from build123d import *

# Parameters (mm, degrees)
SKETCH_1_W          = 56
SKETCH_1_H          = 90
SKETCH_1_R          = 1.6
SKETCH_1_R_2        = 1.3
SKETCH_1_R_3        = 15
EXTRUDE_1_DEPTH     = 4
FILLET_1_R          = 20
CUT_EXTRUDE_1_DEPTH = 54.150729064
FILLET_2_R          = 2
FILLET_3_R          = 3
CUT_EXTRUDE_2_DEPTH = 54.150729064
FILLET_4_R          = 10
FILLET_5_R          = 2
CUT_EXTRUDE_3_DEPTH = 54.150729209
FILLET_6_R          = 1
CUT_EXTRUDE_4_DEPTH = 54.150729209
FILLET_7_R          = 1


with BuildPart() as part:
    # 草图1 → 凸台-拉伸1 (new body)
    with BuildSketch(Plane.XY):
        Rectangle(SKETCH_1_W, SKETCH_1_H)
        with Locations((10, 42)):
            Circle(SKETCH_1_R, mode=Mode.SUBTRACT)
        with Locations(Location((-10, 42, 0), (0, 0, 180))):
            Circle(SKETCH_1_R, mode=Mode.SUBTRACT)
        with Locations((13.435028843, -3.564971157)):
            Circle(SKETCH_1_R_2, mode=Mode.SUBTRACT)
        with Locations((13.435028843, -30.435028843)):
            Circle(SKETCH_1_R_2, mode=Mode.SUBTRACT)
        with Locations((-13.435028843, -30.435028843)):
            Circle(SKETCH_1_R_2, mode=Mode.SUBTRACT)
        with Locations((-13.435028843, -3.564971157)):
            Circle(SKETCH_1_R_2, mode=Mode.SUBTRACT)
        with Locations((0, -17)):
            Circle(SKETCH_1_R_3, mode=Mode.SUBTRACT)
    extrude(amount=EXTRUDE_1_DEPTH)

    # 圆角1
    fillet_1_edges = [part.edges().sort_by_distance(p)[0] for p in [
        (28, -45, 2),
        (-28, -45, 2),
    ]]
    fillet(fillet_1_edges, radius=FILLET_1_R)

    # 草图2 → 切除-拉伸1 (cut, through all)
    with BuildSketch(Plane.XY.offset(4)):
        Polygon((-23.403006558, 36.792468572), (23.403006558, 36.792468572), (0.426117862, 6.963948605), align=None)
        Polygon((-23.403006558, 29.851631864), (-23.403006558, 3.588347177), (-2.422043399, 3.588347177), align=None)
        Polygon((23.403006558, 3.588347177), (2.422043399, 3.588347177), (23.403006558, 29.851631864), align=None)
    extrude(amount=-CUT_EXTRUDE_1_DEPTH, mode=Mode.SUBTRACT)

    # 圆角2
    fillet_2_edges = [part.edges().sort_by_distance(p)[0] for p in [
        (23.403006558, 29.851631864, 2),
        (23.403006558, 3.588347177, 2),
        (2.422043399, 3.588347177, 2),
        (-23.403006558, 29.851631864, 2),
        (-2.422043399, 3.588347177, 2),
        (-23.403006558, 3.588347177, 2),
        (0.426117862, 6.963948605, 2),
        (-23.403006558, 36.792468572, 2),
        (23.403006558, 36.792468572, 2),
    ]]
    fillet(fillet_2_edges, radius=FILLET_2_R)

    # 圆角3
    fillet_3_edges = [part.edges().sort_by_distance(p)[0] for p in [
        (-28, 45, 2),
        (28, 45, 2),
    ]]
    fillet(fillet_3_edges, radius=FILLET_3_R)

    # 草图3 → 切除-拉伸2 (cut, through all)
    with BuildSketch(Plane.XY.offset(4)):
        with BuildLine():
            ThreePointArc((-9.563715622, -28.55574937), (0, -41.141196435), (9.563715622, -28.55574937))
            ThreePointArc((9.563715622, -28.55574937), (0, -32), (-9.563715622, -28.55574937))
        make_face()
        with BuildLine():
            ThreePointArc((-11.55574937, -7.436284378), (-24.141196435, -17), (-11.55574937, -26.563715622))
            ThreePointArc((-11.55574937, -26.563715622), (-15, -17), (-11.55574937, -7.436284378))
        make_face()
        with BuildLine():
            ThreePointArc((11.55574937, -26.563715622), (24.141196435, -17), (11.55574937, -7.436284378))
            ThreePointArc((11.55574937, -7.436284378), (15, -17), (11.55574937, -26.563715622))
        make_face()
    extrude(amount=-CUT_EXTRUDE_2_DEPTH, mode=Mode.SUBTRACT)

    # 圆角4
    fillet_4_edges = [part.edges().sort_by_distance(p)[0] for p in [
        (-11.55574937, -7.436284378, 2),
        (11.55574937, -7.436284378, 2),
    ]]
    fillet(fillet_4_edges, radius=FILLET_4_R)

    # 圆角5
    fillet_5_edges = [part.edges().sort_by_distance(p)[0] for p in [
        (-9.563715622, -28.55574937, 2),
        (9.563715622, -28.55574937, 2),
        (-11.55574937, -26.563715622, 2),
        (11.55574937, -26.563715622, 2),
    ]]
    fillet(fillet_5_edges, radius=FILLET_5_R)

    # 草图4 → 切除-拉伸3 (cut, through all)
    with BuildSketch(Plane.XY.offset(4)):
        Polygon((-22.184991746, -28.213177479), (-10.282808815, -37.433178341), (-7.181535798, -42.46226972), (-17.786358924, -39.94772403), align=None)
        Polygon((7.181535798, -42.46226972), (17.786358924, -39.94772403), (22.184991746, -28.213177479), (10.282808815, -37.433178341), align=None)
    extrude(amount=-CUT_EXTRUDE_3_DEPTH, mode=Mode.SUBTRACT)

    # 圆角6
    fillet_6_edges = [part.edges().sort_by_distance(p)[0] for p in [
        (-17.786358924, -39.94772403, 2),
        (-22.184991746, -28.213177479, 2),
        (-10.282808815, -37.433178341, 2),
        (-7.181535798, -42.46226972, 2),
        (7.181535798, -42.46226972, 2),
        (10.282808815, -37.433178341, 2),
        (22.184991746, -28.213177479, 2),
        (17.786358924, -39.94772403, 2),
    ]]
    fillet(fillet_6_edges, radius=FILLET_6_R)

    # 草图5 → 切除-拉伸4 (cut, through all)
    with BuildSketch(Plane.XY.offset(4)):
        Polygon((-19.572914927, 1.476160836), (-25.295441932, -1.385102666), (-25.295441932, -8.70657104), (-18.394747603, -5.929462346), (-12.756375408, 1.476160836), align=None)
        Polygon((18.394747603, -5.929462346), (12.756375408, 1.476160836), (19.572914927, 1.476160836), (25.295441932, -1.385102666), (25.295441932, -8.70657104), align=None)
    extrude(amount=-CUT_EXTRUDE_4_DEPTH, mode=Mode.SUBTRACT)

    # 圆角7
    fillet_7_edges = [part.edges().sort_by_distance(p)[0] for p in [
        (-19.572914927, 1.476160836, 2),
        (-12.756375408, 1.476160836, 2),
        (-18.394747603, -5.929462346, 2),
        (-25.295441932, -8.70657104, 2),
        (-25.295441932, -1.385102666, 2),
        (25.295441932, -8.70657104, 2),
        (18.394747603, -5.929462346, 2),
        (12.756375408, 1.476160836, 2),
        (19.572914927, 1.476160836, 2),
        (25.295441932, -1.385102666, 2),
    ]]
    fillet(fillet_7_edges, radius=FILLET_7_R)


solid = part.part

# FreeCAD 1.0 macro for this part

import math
import FreeCAD as App
import Part
import Sketcher

V = App.Vector
Q = App.Units.Quantity


def edges_at(feature, points):
    """Names of the edges that pass closest to the given points."""
    edges = feature.Shape.Edges
    near = lambda p: min(range(len(edges)), key=lambda i: edges[i].distToShape(Part.Vertex(*p))[0])
    return sorted({f"Edge{near(p) + 1}" for p in points})


def add_polygon(sketch, points):
    """Adds a closed chain of lines whose ends are joined by coincident constraints."""
    first, n = sketch.GeometryCount, len(points)
    for a, b in zip(points, points[1:] + points[:1]):
        sketch.addGeometry(Part.LineSegment(App.Vector(*a, 0), App.Vector(*b, 0)), False)
    for i in range(n):
        sketch.addConstraint(Sketcher.Constraint("Coincident", first + i, 2, first + (i + 1) % n, 1))

doc = App.newDocument("Part")
body = doc.addObject("PartDesign::Body", "Body")

# Sketch on XY plane
sketch1 = body.newObject("Sketcher::SketchObject", "Sketch")
sketch1.AttachmentSupport = (doc.getObject("XY_Plane"), [""])
sketch1.MapMode = "FlatFace"
add_polygon(sketch1, [(-28, 45), (-28, -45), (28, -45), (28, 45)])  # lines 0-3
sketch1.addGeometry(Part.Circle(V(-13.435029, -30.435029, 0), V(0, 0, 1), 1.3), False)  # 4
sketch1.addGeometry(Part.Circle(V(-13.435029, -3.564971, 0), V(0, 0, 1), 1.3), False)  # 5
sketch1.addGeometry(Part.Circle(V(0, -17, 0), V(0, 0, 1), 15), False)  # 6
sketch1.addGeometry(Part.Circle(V(13.435029, -30.435029, 0), V(0, 0, 1), 1.3), False)  # 7
sketch1.addGeometry(Part.Circle(V(13.435029, -3.564971, 0), V(0, 0, 1), 1.3), False)  # 8
sketch1.addGeometry(Part.Circle(V(-10, 42, 0), V(0, 0, 1), 1.6), False)  # 9
sketch1.addGeometry(Part.Circle(V(10, 42, 0), V(0, 0, 1), 1.6), False)  # 10
sketch1.addConstraint([
    Sketcher.Constraint("Vertical", 0),
    Sketcher.Constraint("Horizontal", 1),
    Sketcher.Constraint("Vertical", 2),
    Sketcher.Constraint("Horizontal", 3),
    Sketcher.Constraint("Equal", 4, 5),
    Sketcher.Constraint("Equal", 5, 7),
    Sketcher.Constraint("Equal", 7, 8),
    Sketcher.Constraint("Equal", 9, 10),
    Sketcher.Constraint("Symmetric", 0, 2, 2, 2, -1, 1),
    Sketcher.Constraint("Symmetric", 4, 3, 7, 3, -2),
    Sketcher.Constraint("Symmetric", 5, 3, 8, 3, -2),
    Sketcher.Constraint("Symmetric", 9, 3, 10, 3, -2),
    Sketcher.Constraint("PointOnObject", 6, 3, -2),
    Sketcher.Constraint("Vertical", 4, 3, 5, 3),
    Sketcher.Constraint("Diameter", 6, Q("30 mm")),
    Sketcher.Constraint("Diameter", 4, Q("2.6 mm")),
    Sketcher.Constraint("Diameter", 9, Q("3.2 mm")),
    Sketcher.Constraint("DistanceX", 1, 1, 1, 2, Q("56 mm")),
    Sketcher.Constraint("DistanceY", 0, 2, 0, 1, Q("90 mm")),
    Sketcher.Constraint("DistanceY", 6, 3, -1, 1, Q("17 mm")),
    Sketcher.Constraint("DistanceX", 9, 3, -1, 1, Q("10 mm")),
    Sketcher.Constraint("DistanceY", -1, 1, 9, 3, Q("42 mm")),
    Sketcher.Constraint("DistanceX", 4, 3, -1, 1, Q("13.435029 mm")),
    Sketcher.Constraint("DistanceY", 4, 3, -1, 1, Q("30.435029 mm")),
    Sketcher.Constraint("DistanceY", 5, 3, -1, 1, Q("3.564971 mm")),
])
pad1 = body.newObject("PartDesign::Pad", "Pad")
pad1.Profile = sketch1
pad1.Length = 4
doc.recompute()

fillet = body.newObject("PartDesign::Fillet", "Fillet")
fillet.Base = (pad1, edges_at(pad1, [(28, -45, 2), (-28, -45, 2)]))
fillet.Radius = 20

# Sketch on XY plane
sketch2 = body.newObject("Sketcher::SketchObject", "Sketch001")
sketch2.AttachmentSupport = (doc.getObject("XY_Plane"), [""])
sketch2.MapMode = "FlatFace"
sketch2.AttachmentOffset = App.Placement(V(0, 0, 4), App.Rotation())
add_polygon(sketch2, [(23.403007, 36.792469), (-23.403007, 36.792469), (0.426118, 6.963949)])  # lines 0-2
add_polygon(sketch2, [(-23.403007, 29.851632), (-23.403007, 3.588347), (-2.422043, 3.588347)])  # lines 3-5
add_polygon(sketch2, [(2.422043, 3.588347), (23.403007, 3.588347), (23.403007, 29.851632)])  # lines 6-8
sketch2.addConstraint([
    Sketcher.Constraint("Horizontal", 0),
    Sketcher.Constraint("Vertical", 3),
    Sketcher.Constraint("Horizontal", 4),
    Sketcher.Constraint("Horizontal", 6),
    Sketcher.Constraint("Vertical", 7),
    Sketcher.Constraint("Symmetric", 3, 2, 6, 2, -2),
    Sketcher.Constraint("Parallel", 1, 5),
    Sketcher.Constraint("Horizontal", 5, 2, 7, 2),
    Sketcher.Constraint("Vertical", 0, 2, 3, 2),
    Sketcher.Constraint("Vertical", 2, 2, 6, 2),
    Sketcher.Constraint("Equal", 4, 6),
    Sketcher.Constraint("DistanceY", 3, 2, 1, 2, Q("3.375601 mm")),
    Sketcher.Constraint("Distance", 5, Q("33.614892 mm")),
    Sketcher.Constraint("DistanceX", 0, 2, 0, 1, Q("46.806013 mm")),
    Sketcher.Constraint("DistanceX", 4, 1, 4, 2, Q("20.980963 mm")),
    Sketcher.Constraint("DistanceY", -1, 1, 0, 2, Q("36.792469 mm")),
    Sketcher.Constraint("DistanceY", -1, 1, 1, 2, Q("6.963949 mm")),
])
pocket1 = body.newObject("PartDesign::Pocket", "Pocket")
pocket1.Profile = sketch2
pocket1.Type = "ThroughAll"
doc.recompute()

fillet2 = body.newObject("PartDesign::Fillet", "Fillet001")
fillet2.Base = (pocket1, edges_at(pocket1, [
    (23.403, 29.852, 2),
    (23.403, 3.588, 2),
    (2.422, 3.588, 2),
    (-23.403, 29.852, 2),
    (-2.422, 3.588, 2),
    (-23.403, 3.588, 2),
    (0.426, 6.964, 2),
    (-23.403, 36.792, 2),
    (23.403, 36.792, 2),
]))
fillet2.Radius = 2
doc.recompute()

fillet3 = body.newObject("PartDesign::Fillet", "Fillet002")
fillet3.Base = (fillet2, edges_at(fillet2, [(-28, 45, 2), (28, 45, 2)]))
fillet3.Radius = 3

# Sketch on XY plane
sketch3 = body.newObject("Sketcher::SketchObject", "Sketch002")
sketch3.AttachmentSupport = (doc.getObject("XY_Plane"), [""])
sketch3.MapMode = "FlatFace"
sketch3.AttachmentOffset = App.Placement(V(0, 0, 4), App.Rotation())
sketch3.addGeometry([
    Part.ArcOfCircle(Part.Circle(V(0, -31.214726, 0), V(0, 0, 1), 9.92647), math.radians(164.462602), math.radians(375.537398)),  # 0
    Part.ArcOfCircle(Part.Circle(V(0, -17, 0), V(0, 0, 1), 15), math.radians(-129.611679), math.radians(-50.388321)),  # 1
    Part.ArcOfCircle(Part.Circle(V(-14.214726, -17, 0), V(0, 0, 1), 9.92647), math.radians(74.462602), math.radians(285.537398)),  # 2
    Part.ArcOfCircle(Part.Circle(V(0, -17, 0), V(0, 0, 1), 15), math.radians(140.388321), math.radians(219.611679)),  # 3
    Part.ArcOfCircle(Part.Circle(V(14.214726, -17, 0), V(0, 0, 1), 9.92647), math.radians(-105.537398), math.radians(105.537398)),  # 4
    Part.ArcOfCircle(Part.Circle(V(0, -17, 0), V(0, 0, 1), 15), math.radians(-39.611679), math.radians(39.611679)),  # 5
], False)
sketch3.addConstraint([
    Sketcher.Constraint("Coincident", 0, 1, 1, 1),
    Sketcher.Constraint("Coincident", 1, 2, 0, 2),
    Sketcher.Constraint("Coincident", 2, 1, 3, 1),
    Sketcher.Constraint("Coincident", 3, 2, 2, 2),
    Sketcher.Constraint("Coincident", 4, 1, 5, 1),
    Sketcher.Constraint("Coincident", 5, 2, 4, 2),
    Sketcher.Constraint("Coincident", 3, 3, 1, 3),
    Sketcher.Constraint("Coincident", 5, 3, 1, 3),
    Sketcher.Constraint("Equal", 0, 2),
    Sketcher.Constraint("Equal", 1, 3),
    Sketcher.Constraint("Equal", 2, 4),
    Sketcher.Constraint("Equal", 3, 5),
    Sketcher.Constraint("Symmetric", 2, 3, 4, 3, -2),
    Sketcher.Constraint("Symmetric", 0, 1, 1, 2, -2),
    Sketcher.Constraint("Horizontal", 1, 3, 2, 3),
    Sketcher.Constraint("Radius", 1, Q("15 mm")),
    Sketcher.Constraint("DistanceY", 1, 3, -1, 1, Q("17 mm")),
    Sketcher.Constraint("Radius", 0, Q("9.92647 mm")),
    Sketcher.Constraint("DistanceY", 0, 1, -1, 1, Q("28.555749 mm")),
    Sketcher.Constraint("DistanceX", 2, 1, -1, 1, Q("11.555749 mm")),
])
pocket2 = body.newObject("PartDesign::Pocket", "Pocket001")
pocket2.Profile = sketch3
pocket2.Type = "ThroughAll"
doc.recompute()

fillet4 = body.newObject("PartDesign::Fillet", "Fillet003")
fillet4.Base = (pocket2, edges_at(pocket2, [(-11.556, -7.436, 2), (11.556, -7.436, 2)]))
fillet4.Radius = 10
doc.recompute()

fillet5 = body.newObject("PartDesign::Fillet", "Fillet004")
fillet5.Base = (fillet4, edges_at(fillet4, [
    (-9.564, -28.556, 2),
    (9.564, -28.556, 2),
    (-11.556, -26.564, 2),
    (11.556, -26.564, 2),
]))
fillet5.Radius = 2

# Sketch on XY plane
sketch4 = body.newObject("Sketcher::SketchObject", "Sketch003")
sketch4.AttachmentSupport = (doc.getObject("XY_Plane"), [""])
sketch4.MapMode = "FlatFace"
sketch4.AttachmentOffset = App.Placement(V(0, 0, 4), App.Rotation())
add_polygon(sketch4, [(-10.282809, -37.433178), (-22.184992, -28.213177), (-17.786359, -39.947724), (-7.181536, -42.46227)])  # lines 0-3
add_polygon(sketch4, [(7.181536, -42.46227), (17.786359, -39.947724), (22.184992, -28.213177), (10.282809, -37.433178)])  # lines 4-7
sketch4.addConstraint([
    Sketcher.Constraint("Symmetric", 1, 2, 4, 2, -2),
    Sketcher.Constraint("Symmetric", 0, 2, 5, 2, -2),
    Sketcher.Constraint("Symmetric", 3, 2, 6, 2, -2),
    Sketcher.Constraint("Symmetric", 2, 2, 7, 2, -2),
    Sketcher.Constraint("DistanceY", 3, 2, 0, 2, Q("9.220001 mm")),
    Sketcher.Constraint("DistanceX", 3, 2, 5, 2, Q("32.467801 mm")),
    Sketcher.Constraint("Distance", 1, Q("12.531862 mm")),
    Sketcher.Constraint("Distance", 3, Q("5.908439 mm")),
    Sketcher.Constraint("DistanceX", 0, 2, -1, 1, Q("22.184992 mm")),
    Sketcher.Constraint("DistanceX", 1, 2, -1, 1, Q("17.786359 mm")),
    Sketcher.Constraint("DistanceY", 2, 2, -1, 1, Q("42.46227 mm")),
    Sketcher.Constraint("DistanceY", 3, 2, -1, 1, Q("37.433178 mm")),
])
pocket3 = body.newObject("PartDesign::Pocket", "Pocket002")
pocket3.Profile = sketch4
pocket3.Type = "ThroughAll"
doc.recompute()

fillet6 = body.newObject("PartDesign::Fillet", "Fillet005")
fillet6.Base = (pocket3, edges_at(pocket3, [
    (-17.786, -39.948, 2),
    (-22.185, -28.213, 2),
    (-10.283, -37.433, 2),
    (-7.182, -42.462, 2),
    (7.182, -42.462, 2),
    (10.283, -37.433, 2),
    (22.185, -28.213, 2),
    (17.786, -39.948, 2),
]))
fillet6.Radius = 1

# Sketch on XY plane
sketch5 = body.newObject("Sketcher::SketchObject", "Sketch004")
sketch5.AttachmentSupport = (doc.getObject("XY_Plane"), [""])
sketch5.MapMode = "FlatFace"
sketch5.AttachmentOffset = App.Placement(V(0, 0, 4), App.Rotation())
add_polygon(sketch5, [(-19.572915, 1.476161), (-25.295442, -1.385103), (-25.295442, -8.706571), (-18.394748, -5.929462), (-12.756375, 1.476161)])  # lines 0-4
add_polygon(sketch5, [(12.756375, 1.476161), (18.394748, -5.929462), (25.295442, -8.706571), (25.295442, -1.385103), (19.572915, 1.476161)])  # lines 5-9
sketch5.addConstraint([
    Sketcher.Constraint("Vertical", 1),
    Sketcher.Constraint("Horizontal", 4),
    Sketcher.Constraint("Vertical", 7),
    Sketcher.Constraint("Horizontal", 9),
    Sketcher.Constraint("Symmetric", 2, 2, 5, 2, -2),
    Sketcher.Constraint("Symmetric", 1, 2, 6, 2, -2),
    Sketcher.Constraint("Symmetric", 4, 2, 8, 2, -2),
    Sketcher.Constraint("Horizontal", 0, 2, 7, 2),
    Sketcher.Constraint("Equal", 4, 9),
    Sketcher.Constraint("DistanceX", 4, 2, 4, 1, Q("6.81654 mm")),
    Sketcher.Constraint("DistanceY", 1, 2, 1, 1, Q("7.321468 mm")),
    Sketcher.Constraint("Distance", 0, Q("6.39798 mm")),
    Sketcher.Constraint("DistanceX", 0, 2, -1, 1, Q("25.295442 mm")),
    Sketcher.Constraint("DistanceY", 1, 2, -1, 1, Q("8.706571 mm")),
    Sketcher.Constraint("DistanceY", -1, 1, 3, 2, Q("1.476161 mm")),
    Sketcher.Constraint("DistanceY", 1, 2, 2, 2, Q("2.777109 mm")),
    Sketcher.Constraint("DistanceX", 1, 2, 5, 2, Q("43.69019 mm")),
])
pocket4 = body.newObject("PartDesign::Pocket", "Pocket003")
pocket4.Profile = sketch5
pocket4.Type = "ThroughAll"
doc.recompute()

fillet7 = body.newObject("PartDesign::Fillet", "Fillet006")
fillet7.Base = (pocket4, edges_at(pocket4, [
    (-19.573, 1.476, 2),
    (-12.756, 1.476, 2),
    (-18.395, -5.929, 2),
    (-25.295, -8.707, 2),
    (-25.295, -1.385, 2),
    (25.295, -8.707, 2),
    (18.395, -5.929, 2),
    (12.756, 1.476, 2),
    (19.573, 1.476, 2),
    (25.295, -1.385, 2),
]))
fillet7.Radius = 1

doc.recompute()
